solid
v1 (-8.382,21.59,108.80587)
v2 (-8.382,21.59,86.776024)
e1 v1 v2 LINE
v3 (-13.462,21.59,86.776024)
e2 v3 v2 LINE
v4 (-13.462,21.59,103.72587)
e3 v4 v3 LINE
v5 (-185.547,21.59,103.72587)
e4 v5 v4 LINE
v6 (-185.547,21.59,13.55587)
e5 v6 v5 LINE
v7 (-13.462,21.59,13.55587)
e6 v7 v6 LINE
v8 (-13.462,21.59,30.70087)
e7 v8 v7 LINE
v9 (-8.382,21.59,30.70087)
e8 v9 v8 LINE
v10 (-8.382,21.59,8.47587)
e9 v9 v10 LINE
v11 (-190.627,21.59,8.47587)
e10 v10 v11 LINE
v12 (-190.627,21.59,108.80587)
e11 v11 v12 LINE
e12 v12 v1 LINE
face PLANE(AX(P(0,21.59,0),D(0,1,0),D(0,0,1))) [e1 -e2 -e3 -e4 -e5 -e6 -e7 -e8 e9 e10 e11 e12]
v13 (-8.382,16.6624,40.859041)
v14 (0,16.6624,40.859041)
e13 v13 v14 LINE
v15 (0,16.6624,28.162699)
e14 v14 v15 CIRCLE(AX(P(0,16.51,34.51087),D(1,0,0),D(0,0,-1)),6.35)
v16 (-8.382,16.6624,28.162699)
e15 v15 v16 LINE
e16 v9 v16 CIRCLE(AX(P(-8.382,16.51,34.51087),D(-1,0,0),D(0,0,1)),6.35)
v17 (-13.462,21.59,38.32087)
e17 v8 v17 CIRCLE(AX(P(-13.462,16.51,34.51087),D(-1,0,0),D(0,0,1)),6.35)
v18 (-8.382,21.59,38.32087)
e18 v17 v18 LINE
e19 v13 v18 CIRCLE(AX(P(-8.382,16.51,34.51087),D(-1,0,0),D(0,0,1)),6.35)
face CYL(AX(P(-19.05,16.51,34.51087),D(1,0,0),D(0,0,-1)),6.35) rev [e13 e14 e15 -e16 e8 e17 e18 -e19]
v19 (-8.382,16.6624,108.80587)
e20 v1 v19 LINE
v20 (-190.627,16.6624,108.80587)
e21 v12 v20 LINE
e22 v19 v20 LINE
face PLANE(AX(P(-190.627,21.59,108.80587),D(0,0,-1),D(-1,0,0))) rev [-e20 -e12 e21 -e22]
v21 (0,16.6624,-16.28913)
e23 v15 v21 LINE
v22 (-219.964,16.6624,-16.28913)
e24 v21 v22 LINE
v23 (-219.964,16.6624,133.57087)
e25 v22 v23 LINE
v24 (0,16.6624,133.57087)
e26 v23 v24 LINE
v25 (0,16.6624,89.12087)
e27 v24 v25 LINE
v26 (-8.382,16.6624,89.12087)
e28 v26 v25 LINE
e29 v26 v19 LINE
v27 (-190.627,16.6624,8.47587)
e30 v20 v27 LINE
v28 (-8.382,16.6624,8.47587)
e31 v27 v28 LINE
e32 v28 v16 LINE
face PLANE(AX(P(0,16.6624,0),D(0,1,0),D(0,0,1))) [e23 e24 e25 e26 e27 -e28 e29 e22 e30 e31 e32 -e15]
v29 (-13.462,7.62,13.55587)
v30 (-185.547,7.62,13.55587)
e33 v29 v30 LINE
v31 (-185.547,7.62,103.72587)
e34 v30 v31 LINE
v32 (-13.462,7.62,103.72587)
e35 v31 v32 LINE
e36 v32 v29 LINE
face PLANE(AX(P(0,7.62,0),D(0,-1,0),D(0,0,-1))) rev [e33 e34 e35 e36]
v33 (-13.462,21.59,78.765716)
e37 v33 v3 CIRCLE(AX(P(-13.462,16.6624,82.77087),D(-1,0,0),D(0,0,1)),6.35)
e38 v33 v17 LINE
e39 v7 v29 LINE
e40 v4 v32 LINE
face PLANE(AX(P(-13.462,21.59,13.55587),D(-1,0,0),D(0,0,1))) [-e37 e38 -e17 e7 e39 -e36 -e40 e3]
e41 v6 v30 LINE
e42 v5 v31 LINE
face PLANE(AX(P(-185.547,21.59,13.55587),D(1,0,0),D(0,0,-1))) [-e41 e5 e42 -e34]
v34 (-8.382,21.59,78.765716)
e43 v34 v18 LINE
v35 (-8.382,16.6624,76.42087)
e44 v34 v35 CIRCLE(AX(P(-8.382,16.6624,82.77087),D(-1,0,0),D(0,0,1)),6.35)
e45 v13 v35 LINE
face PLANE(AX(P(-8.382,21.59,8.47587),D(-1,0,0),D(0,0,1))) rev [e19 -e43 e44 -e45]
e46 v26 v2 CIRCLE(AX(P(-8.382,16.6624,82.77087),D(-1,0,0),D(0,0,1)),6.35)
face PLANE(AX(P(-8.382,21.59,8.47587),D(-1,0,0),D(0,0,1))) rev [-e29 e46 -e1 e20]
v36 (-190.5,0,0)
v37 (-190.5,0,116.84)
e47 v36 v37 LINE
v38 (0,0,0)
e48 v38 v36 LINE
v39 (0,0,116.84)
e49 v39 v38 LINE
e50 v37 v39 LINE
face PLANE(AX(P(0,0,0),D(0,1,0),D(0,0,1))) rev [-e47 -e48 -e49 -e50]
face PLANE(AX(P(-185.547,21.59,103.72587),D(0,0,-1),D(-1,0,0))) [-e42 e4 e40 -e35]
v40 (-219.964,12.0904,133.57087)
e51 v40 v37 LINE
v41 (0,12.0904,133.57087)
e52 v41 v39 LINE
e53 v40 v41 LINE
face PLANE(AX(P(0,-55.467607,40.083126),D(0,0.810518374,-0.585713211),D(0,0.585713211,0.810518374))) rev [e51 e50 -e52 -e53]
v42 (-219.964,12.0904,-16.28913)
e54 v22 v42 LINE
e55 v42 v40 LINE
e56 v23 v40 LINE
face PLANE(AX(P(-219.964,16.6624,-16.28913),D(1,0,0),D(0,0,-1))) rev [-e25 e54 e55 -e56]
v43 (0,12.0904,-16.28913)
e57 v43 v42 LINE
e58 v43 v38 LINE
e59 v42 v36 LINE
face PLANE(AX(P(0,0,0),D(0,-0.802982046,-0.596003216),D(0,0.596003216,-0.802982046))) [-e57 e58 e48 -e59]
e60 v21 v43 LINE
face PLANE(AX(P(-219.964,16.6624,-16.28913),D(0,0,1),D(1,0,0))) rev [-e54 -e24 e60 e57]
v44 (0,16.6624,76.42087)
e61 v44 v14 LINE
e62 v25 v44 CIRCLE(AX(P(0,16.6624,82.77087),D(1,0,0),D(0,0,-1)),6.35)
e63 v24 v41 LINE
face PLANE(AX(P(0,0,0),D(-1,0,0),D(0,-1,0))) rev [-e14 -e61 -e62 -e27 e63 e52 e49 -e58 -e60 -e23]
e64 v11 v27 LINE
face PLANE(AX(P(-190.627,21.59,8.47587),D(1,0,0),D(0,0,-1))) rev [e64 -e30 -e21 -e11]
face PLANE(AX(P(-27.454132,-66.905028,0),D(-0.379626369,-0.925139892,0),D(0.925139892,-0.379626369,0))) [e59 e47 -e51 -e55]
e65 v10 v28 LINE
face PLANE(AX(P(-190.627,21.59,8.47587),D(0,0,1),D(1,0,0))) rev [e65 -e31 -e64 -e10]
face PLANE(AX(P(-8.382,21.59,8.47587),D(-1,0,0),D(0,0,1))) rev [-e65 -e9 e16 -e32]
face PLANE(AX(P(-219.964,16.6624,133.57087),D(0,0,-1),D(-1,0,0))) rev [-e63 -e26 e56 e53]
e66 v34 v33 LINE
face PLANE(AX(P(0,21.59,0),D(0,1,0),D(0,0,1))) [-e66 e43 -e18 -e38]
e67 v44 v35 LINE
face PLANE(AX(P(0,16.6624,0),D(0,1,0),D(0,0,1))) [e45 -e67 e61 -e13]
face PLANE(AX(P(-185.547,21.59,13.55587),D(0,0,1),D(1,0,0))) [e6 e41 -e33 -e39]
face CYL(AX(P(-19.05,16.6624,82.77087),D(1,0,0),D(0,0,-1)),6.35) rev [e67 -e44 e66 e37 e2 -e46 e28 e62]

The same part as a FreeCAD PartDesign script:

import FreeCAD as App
import Part
import Sketcher

V = App.Vector
Q = App.Units.Quantity


def add_polygon(sketch, points):
    """Adds a closed chain of lines whose ends are joined by coincident constraints."""
    first, n = sketch.GeometryCount, len(points)
    for a, b in zip(points, points[1:] + points[:1]):
        sketch.addGeometry(Part.LineSegment(App.Vector(*a, 0), App.Vector(*b, 0)), False)
    for i in range(n):
        sketch.addConstraint(Sketcher.Constraint("Coincident", first + i, 2, first + (i + 1) % n, 1))

doc = App.newDocument("Part")
body = doc.addObject("PartDesign::Body", "Body")

sketch1 = body.newObject("Sketcher::SketchObject", "Sketch")
sketch1.AttachmentSupport = (doc.getObject("XZ_Plane"), [""])
sketch1.MapMode = "FlatFace"
sketch1.AttachmentOffset = App.Placement(V(0, 0, -0.476 * 25.4), App.Rotation())
add_polygon(sketch1, [(-219.964, -16.28913), (-219.964, 133.57087), (0, 133.57087), (0, -16.28913)])
sketch1.addConstraint([
    Sketcher.Constraint("Vertical", 0),
    Sketcher.Constraint("Horizontal", 1),
    Sketcher.Constraint("Vertical", 2),
    Sketcher.Constraint("Horizontal", 3),
    Sketcher.Constraint("PointOnObject", 1, 2, -2),
    Sketcher.Constraint("DistanceY", 0, 1, 0, 2, Q("5.9 in")),
    Sketcher.Constraint("DistanceX", 1, 1, 1, 2, Q("8.66 in")),
    Sketcher.Constraint("DistanceY", -1, 1, 0, 2, Q("133.57087 mm")),
])

sketch2 = body.newObject("Sketcher::SketchObject", "Sketch001")
sketch2.AttachmentSupport = (doc.getObject("XZ_Plane"), [""])
sketch2.MapMode = "FlatFace"
add_polygon(sketch2, [(-190.5, 0), (-190.5, 116.84), (0, 116.84), (0, 0)])
sketch2.addConstraint([
    Sketcher.Constraint("Vertical", 0),
    Sketcher.Constraint("Horizontal", 1),
    Sketcher.Constraint("Vertical", 2),
    Sketcher.Constraint("Horizontal", 3),
    Sketcher.Constraint("Coincident", 2, 2, -1, 1),
    Sketcher.Constraint("DistanceX", 1, 1, 1, 2, Q("7.5 in")),
    Sketcher.Constraint("DistanceY", 0, 1, 0, 2, Q("4.6 in")),
])

additiveloft = body.newObject("PartDesign::AdditiveLoft", "AdditiveLoft")
additiveloft.Profile = sketch1
additiveloft.Sections = [sketch2]

sketch3 = body.newObject("Sketcher::SketchObject", "Sketch002")
sketch3.AttachmentSupport = (doc.getObject("XZ_Plane"), [""])
sketch3.MapMode = "FlatFace"
sketch3.AttachmentOffset = App.Placement(V(0, 0, -0.476 * 25.4), App.Rotation())
add_polygon(sketch3, [(-219.964, -16.28913), (-219.964, 133.57087), (0, 133.57087), (0, -16.28913)])
sketch3.addConstraint([
    Sketcher.Constraint("Vertical", 0),
    Sketcher.Constraint("Horizontal", 1),
    Sketcher.Constraint("Vertical", 2),
    Sketcher.Constraint("Horizontal", 3),
    Sketcher.Constraint("PointOnObject", 1, 2, -2),
    Sketcher.Constraint("DistanceY", 0, 1, 0, 2, Q("5.9 in")),
    Sketcher.Constraint("DistanceX", 1, 1, 1, 2, Q("8.66 in")),
    Sketcher.Constraint("DistanceY", -1, 1, 0, 2, Q("133.57087 mm")),
])
pad1 = body.newObject("PartDesign::Pad", "Pad")
pad1.Profile = sketch3
pad1.Length = Q("0.18 in")
pad1.Reversed = True

sketch4 = body.newObject("Sketcher::SketchObject", "Sketch003")
sketch4.AttachmentSupport = (doc.getObject("XZ_Plane"), [""])
sketch4.MapMode = "FlatFace"
sketch4.AttachmentOffset = App.Placement(V(0, 0, -0.65 * 25.4), App.Rotation())
add_polygon(sketch4, [(-190.627, 8.47587), (-190.627, 108.80587), (-8.382, 108.80587), (-8.382, 8.47587)])
sketch4.addConstraint([
    Sketcher.Constraint("Vertical", 0),
    Sketcher.Constraint("Horizontal", 1),
    Sketcher.Constraint("Vertical", 2),
    Sketcher.Constraint("Horizontal", 3),
    Sketcher.Constraint("DistanceY", 0, 1, 0, 2, Q("3.95 in")),
    Sketcher.Constraint("DistanceX", 1, 1, 1, 2, Q("7.175 in")),
    Sketcher.Constraint("DistanceX", 1, 2, -1, 1, Q("0.33 in")),
    Sketcher.Constraint("DistanceY", -1, 1, 0, 2, Q("108.80587 mm")),
])
pad2 = body.newObject("PartDesign::Pad", "Pad001")
pad2.Profile = sketch4
pad2.Length = Q("0.2 in")
pad2.Reversed = True

sketch5 = body.newObject("Sketcher::SketchObject", "Sketch004")
sketch5.AttachmentSupport = (doc.getObject("XZ_Plane"), [""])
sketch5.MapMode = "FlatFace"
sketch5.AttachmentOffset = App.Placement(V(0, 0, -0.65 * 25.4), App.Rotation())
add_polygon(sketch5, [(-185.547, 13.55587), (-185.547, 103.72587), (-13.462, 103.72587), (-13.462, 13.55587)])
sketch5.addConstraint([
    Sketcher.Constraint("Vertical", 0),
    Sketcher.Constraint("Horizontal", 1),
    Sketcher.Constraint("Vertical", 2),
    Sketcher.Constraint("Horizontal", 3),
    Sketcher.Constraint("DistanceY", 0, 1, 0, 2, Q("3.55 in")),
    Sketcher.Constraint("DistanceX", 1, 1, 1, 2, Q("6.775 in")),
    Sketcher.Constraint("DistanceX", 1, 2, -1, 1, Q("0.53 in")),
    Sketcher.Constraint("DistanceY", -1, 1, 0, 2, Q("103.72587 mm")),
])
pocket1 = body.newObject("PartDesign::Pocket", "Pocket")
pocket1.Profile = sketch5
pocket1.Type = "ThroughAll"

sketch6 = body.newObject("Sketcher::SketchObject", "Sketch005")
sketch6.AttachmentSupport = (doc.getObject("XZ_Plane"), [""])
sketch6.MapMode = "FlatFace"
sketch6.AttachmentOffset = App.Placement(V(0, 0, -0.65 * 25.4), App.Rotation())
add_polygon(sketch6, [(-185.547, 13.55587), (-185.547, 103.72587), (-13.462, 103.72587), (-13.462, 13.55587)])
sketch6.addConstraint([
    Sketcher.Constraint("Vertical", 0),
    Sketcher.Constraint("Horizontal", 1),
    Sketcher.Constraint("Vertical", 2),
    Sketcher.Constraint("Horizontal", 3),
    Sketcher.Constraint("DistanceY", 0, 1, 0, 2, Q("3.55 in")),
    Sketcher.Constraint("DistanceX", 1, 1, 1, 2, Q("6.775 in")),
    Sketcher.Constraint("DistanceX", 1, 2, -1, 1, Q("0.53 in")),
    Sketcher.Constraint("DistanceY", -1, 1, 0, 2, Q("103.72587 mm")),
])
pocket2 = body.newObject("PartDesign::Pocket", "Pocket001")
pocket2.Profile = sketch6
pocket2.Length = Q("0.35 in")
pocket2.Reversed = True

sketch7 = body.newObject("Sketcher::SketchObject", "Sketch006")
sketch7.AttachmentSupport = (doc.getObject("YZ_Plane"), [""])
sketch7.MapMode = "FlatFace"
sketch7.addGeometry([
    Part.Circle(V(16.6624, 82.77087, 0), V(0, 0, 1), 6.35),
    Part.Circle(V(16.51, 34.51087, 0), V(0, 0, 1), 6.35),
], False)
sketch7.addConstraint([
    Sketcher.Constraint("Equal", 0, 1),
    Sketcher.Constraint("Diameter", 0, Q("0.5 in")),
    Sketcher.Constraint("DistanceY", 1, 3, 0, 3, Q("1.9 in")),
    Sketcher.Constraint("DistanceX", -1, 1, 1, 3, Q("0.65 in")),
    Sketcher.Constraint("DistanceX", -1, 1, 0, 3, Q("0.656 in")),
    Sketcher.Constraint("DistanceY", -1, 1, 0, 3, Q("82.77087 mm")),
])
pocket3 = body.newObject("PartDesign::Pocket", "Pocket002")
pocket3.Profile = sketch7
pocket3.Length = Q("0.75 in")

doc.recompute()
